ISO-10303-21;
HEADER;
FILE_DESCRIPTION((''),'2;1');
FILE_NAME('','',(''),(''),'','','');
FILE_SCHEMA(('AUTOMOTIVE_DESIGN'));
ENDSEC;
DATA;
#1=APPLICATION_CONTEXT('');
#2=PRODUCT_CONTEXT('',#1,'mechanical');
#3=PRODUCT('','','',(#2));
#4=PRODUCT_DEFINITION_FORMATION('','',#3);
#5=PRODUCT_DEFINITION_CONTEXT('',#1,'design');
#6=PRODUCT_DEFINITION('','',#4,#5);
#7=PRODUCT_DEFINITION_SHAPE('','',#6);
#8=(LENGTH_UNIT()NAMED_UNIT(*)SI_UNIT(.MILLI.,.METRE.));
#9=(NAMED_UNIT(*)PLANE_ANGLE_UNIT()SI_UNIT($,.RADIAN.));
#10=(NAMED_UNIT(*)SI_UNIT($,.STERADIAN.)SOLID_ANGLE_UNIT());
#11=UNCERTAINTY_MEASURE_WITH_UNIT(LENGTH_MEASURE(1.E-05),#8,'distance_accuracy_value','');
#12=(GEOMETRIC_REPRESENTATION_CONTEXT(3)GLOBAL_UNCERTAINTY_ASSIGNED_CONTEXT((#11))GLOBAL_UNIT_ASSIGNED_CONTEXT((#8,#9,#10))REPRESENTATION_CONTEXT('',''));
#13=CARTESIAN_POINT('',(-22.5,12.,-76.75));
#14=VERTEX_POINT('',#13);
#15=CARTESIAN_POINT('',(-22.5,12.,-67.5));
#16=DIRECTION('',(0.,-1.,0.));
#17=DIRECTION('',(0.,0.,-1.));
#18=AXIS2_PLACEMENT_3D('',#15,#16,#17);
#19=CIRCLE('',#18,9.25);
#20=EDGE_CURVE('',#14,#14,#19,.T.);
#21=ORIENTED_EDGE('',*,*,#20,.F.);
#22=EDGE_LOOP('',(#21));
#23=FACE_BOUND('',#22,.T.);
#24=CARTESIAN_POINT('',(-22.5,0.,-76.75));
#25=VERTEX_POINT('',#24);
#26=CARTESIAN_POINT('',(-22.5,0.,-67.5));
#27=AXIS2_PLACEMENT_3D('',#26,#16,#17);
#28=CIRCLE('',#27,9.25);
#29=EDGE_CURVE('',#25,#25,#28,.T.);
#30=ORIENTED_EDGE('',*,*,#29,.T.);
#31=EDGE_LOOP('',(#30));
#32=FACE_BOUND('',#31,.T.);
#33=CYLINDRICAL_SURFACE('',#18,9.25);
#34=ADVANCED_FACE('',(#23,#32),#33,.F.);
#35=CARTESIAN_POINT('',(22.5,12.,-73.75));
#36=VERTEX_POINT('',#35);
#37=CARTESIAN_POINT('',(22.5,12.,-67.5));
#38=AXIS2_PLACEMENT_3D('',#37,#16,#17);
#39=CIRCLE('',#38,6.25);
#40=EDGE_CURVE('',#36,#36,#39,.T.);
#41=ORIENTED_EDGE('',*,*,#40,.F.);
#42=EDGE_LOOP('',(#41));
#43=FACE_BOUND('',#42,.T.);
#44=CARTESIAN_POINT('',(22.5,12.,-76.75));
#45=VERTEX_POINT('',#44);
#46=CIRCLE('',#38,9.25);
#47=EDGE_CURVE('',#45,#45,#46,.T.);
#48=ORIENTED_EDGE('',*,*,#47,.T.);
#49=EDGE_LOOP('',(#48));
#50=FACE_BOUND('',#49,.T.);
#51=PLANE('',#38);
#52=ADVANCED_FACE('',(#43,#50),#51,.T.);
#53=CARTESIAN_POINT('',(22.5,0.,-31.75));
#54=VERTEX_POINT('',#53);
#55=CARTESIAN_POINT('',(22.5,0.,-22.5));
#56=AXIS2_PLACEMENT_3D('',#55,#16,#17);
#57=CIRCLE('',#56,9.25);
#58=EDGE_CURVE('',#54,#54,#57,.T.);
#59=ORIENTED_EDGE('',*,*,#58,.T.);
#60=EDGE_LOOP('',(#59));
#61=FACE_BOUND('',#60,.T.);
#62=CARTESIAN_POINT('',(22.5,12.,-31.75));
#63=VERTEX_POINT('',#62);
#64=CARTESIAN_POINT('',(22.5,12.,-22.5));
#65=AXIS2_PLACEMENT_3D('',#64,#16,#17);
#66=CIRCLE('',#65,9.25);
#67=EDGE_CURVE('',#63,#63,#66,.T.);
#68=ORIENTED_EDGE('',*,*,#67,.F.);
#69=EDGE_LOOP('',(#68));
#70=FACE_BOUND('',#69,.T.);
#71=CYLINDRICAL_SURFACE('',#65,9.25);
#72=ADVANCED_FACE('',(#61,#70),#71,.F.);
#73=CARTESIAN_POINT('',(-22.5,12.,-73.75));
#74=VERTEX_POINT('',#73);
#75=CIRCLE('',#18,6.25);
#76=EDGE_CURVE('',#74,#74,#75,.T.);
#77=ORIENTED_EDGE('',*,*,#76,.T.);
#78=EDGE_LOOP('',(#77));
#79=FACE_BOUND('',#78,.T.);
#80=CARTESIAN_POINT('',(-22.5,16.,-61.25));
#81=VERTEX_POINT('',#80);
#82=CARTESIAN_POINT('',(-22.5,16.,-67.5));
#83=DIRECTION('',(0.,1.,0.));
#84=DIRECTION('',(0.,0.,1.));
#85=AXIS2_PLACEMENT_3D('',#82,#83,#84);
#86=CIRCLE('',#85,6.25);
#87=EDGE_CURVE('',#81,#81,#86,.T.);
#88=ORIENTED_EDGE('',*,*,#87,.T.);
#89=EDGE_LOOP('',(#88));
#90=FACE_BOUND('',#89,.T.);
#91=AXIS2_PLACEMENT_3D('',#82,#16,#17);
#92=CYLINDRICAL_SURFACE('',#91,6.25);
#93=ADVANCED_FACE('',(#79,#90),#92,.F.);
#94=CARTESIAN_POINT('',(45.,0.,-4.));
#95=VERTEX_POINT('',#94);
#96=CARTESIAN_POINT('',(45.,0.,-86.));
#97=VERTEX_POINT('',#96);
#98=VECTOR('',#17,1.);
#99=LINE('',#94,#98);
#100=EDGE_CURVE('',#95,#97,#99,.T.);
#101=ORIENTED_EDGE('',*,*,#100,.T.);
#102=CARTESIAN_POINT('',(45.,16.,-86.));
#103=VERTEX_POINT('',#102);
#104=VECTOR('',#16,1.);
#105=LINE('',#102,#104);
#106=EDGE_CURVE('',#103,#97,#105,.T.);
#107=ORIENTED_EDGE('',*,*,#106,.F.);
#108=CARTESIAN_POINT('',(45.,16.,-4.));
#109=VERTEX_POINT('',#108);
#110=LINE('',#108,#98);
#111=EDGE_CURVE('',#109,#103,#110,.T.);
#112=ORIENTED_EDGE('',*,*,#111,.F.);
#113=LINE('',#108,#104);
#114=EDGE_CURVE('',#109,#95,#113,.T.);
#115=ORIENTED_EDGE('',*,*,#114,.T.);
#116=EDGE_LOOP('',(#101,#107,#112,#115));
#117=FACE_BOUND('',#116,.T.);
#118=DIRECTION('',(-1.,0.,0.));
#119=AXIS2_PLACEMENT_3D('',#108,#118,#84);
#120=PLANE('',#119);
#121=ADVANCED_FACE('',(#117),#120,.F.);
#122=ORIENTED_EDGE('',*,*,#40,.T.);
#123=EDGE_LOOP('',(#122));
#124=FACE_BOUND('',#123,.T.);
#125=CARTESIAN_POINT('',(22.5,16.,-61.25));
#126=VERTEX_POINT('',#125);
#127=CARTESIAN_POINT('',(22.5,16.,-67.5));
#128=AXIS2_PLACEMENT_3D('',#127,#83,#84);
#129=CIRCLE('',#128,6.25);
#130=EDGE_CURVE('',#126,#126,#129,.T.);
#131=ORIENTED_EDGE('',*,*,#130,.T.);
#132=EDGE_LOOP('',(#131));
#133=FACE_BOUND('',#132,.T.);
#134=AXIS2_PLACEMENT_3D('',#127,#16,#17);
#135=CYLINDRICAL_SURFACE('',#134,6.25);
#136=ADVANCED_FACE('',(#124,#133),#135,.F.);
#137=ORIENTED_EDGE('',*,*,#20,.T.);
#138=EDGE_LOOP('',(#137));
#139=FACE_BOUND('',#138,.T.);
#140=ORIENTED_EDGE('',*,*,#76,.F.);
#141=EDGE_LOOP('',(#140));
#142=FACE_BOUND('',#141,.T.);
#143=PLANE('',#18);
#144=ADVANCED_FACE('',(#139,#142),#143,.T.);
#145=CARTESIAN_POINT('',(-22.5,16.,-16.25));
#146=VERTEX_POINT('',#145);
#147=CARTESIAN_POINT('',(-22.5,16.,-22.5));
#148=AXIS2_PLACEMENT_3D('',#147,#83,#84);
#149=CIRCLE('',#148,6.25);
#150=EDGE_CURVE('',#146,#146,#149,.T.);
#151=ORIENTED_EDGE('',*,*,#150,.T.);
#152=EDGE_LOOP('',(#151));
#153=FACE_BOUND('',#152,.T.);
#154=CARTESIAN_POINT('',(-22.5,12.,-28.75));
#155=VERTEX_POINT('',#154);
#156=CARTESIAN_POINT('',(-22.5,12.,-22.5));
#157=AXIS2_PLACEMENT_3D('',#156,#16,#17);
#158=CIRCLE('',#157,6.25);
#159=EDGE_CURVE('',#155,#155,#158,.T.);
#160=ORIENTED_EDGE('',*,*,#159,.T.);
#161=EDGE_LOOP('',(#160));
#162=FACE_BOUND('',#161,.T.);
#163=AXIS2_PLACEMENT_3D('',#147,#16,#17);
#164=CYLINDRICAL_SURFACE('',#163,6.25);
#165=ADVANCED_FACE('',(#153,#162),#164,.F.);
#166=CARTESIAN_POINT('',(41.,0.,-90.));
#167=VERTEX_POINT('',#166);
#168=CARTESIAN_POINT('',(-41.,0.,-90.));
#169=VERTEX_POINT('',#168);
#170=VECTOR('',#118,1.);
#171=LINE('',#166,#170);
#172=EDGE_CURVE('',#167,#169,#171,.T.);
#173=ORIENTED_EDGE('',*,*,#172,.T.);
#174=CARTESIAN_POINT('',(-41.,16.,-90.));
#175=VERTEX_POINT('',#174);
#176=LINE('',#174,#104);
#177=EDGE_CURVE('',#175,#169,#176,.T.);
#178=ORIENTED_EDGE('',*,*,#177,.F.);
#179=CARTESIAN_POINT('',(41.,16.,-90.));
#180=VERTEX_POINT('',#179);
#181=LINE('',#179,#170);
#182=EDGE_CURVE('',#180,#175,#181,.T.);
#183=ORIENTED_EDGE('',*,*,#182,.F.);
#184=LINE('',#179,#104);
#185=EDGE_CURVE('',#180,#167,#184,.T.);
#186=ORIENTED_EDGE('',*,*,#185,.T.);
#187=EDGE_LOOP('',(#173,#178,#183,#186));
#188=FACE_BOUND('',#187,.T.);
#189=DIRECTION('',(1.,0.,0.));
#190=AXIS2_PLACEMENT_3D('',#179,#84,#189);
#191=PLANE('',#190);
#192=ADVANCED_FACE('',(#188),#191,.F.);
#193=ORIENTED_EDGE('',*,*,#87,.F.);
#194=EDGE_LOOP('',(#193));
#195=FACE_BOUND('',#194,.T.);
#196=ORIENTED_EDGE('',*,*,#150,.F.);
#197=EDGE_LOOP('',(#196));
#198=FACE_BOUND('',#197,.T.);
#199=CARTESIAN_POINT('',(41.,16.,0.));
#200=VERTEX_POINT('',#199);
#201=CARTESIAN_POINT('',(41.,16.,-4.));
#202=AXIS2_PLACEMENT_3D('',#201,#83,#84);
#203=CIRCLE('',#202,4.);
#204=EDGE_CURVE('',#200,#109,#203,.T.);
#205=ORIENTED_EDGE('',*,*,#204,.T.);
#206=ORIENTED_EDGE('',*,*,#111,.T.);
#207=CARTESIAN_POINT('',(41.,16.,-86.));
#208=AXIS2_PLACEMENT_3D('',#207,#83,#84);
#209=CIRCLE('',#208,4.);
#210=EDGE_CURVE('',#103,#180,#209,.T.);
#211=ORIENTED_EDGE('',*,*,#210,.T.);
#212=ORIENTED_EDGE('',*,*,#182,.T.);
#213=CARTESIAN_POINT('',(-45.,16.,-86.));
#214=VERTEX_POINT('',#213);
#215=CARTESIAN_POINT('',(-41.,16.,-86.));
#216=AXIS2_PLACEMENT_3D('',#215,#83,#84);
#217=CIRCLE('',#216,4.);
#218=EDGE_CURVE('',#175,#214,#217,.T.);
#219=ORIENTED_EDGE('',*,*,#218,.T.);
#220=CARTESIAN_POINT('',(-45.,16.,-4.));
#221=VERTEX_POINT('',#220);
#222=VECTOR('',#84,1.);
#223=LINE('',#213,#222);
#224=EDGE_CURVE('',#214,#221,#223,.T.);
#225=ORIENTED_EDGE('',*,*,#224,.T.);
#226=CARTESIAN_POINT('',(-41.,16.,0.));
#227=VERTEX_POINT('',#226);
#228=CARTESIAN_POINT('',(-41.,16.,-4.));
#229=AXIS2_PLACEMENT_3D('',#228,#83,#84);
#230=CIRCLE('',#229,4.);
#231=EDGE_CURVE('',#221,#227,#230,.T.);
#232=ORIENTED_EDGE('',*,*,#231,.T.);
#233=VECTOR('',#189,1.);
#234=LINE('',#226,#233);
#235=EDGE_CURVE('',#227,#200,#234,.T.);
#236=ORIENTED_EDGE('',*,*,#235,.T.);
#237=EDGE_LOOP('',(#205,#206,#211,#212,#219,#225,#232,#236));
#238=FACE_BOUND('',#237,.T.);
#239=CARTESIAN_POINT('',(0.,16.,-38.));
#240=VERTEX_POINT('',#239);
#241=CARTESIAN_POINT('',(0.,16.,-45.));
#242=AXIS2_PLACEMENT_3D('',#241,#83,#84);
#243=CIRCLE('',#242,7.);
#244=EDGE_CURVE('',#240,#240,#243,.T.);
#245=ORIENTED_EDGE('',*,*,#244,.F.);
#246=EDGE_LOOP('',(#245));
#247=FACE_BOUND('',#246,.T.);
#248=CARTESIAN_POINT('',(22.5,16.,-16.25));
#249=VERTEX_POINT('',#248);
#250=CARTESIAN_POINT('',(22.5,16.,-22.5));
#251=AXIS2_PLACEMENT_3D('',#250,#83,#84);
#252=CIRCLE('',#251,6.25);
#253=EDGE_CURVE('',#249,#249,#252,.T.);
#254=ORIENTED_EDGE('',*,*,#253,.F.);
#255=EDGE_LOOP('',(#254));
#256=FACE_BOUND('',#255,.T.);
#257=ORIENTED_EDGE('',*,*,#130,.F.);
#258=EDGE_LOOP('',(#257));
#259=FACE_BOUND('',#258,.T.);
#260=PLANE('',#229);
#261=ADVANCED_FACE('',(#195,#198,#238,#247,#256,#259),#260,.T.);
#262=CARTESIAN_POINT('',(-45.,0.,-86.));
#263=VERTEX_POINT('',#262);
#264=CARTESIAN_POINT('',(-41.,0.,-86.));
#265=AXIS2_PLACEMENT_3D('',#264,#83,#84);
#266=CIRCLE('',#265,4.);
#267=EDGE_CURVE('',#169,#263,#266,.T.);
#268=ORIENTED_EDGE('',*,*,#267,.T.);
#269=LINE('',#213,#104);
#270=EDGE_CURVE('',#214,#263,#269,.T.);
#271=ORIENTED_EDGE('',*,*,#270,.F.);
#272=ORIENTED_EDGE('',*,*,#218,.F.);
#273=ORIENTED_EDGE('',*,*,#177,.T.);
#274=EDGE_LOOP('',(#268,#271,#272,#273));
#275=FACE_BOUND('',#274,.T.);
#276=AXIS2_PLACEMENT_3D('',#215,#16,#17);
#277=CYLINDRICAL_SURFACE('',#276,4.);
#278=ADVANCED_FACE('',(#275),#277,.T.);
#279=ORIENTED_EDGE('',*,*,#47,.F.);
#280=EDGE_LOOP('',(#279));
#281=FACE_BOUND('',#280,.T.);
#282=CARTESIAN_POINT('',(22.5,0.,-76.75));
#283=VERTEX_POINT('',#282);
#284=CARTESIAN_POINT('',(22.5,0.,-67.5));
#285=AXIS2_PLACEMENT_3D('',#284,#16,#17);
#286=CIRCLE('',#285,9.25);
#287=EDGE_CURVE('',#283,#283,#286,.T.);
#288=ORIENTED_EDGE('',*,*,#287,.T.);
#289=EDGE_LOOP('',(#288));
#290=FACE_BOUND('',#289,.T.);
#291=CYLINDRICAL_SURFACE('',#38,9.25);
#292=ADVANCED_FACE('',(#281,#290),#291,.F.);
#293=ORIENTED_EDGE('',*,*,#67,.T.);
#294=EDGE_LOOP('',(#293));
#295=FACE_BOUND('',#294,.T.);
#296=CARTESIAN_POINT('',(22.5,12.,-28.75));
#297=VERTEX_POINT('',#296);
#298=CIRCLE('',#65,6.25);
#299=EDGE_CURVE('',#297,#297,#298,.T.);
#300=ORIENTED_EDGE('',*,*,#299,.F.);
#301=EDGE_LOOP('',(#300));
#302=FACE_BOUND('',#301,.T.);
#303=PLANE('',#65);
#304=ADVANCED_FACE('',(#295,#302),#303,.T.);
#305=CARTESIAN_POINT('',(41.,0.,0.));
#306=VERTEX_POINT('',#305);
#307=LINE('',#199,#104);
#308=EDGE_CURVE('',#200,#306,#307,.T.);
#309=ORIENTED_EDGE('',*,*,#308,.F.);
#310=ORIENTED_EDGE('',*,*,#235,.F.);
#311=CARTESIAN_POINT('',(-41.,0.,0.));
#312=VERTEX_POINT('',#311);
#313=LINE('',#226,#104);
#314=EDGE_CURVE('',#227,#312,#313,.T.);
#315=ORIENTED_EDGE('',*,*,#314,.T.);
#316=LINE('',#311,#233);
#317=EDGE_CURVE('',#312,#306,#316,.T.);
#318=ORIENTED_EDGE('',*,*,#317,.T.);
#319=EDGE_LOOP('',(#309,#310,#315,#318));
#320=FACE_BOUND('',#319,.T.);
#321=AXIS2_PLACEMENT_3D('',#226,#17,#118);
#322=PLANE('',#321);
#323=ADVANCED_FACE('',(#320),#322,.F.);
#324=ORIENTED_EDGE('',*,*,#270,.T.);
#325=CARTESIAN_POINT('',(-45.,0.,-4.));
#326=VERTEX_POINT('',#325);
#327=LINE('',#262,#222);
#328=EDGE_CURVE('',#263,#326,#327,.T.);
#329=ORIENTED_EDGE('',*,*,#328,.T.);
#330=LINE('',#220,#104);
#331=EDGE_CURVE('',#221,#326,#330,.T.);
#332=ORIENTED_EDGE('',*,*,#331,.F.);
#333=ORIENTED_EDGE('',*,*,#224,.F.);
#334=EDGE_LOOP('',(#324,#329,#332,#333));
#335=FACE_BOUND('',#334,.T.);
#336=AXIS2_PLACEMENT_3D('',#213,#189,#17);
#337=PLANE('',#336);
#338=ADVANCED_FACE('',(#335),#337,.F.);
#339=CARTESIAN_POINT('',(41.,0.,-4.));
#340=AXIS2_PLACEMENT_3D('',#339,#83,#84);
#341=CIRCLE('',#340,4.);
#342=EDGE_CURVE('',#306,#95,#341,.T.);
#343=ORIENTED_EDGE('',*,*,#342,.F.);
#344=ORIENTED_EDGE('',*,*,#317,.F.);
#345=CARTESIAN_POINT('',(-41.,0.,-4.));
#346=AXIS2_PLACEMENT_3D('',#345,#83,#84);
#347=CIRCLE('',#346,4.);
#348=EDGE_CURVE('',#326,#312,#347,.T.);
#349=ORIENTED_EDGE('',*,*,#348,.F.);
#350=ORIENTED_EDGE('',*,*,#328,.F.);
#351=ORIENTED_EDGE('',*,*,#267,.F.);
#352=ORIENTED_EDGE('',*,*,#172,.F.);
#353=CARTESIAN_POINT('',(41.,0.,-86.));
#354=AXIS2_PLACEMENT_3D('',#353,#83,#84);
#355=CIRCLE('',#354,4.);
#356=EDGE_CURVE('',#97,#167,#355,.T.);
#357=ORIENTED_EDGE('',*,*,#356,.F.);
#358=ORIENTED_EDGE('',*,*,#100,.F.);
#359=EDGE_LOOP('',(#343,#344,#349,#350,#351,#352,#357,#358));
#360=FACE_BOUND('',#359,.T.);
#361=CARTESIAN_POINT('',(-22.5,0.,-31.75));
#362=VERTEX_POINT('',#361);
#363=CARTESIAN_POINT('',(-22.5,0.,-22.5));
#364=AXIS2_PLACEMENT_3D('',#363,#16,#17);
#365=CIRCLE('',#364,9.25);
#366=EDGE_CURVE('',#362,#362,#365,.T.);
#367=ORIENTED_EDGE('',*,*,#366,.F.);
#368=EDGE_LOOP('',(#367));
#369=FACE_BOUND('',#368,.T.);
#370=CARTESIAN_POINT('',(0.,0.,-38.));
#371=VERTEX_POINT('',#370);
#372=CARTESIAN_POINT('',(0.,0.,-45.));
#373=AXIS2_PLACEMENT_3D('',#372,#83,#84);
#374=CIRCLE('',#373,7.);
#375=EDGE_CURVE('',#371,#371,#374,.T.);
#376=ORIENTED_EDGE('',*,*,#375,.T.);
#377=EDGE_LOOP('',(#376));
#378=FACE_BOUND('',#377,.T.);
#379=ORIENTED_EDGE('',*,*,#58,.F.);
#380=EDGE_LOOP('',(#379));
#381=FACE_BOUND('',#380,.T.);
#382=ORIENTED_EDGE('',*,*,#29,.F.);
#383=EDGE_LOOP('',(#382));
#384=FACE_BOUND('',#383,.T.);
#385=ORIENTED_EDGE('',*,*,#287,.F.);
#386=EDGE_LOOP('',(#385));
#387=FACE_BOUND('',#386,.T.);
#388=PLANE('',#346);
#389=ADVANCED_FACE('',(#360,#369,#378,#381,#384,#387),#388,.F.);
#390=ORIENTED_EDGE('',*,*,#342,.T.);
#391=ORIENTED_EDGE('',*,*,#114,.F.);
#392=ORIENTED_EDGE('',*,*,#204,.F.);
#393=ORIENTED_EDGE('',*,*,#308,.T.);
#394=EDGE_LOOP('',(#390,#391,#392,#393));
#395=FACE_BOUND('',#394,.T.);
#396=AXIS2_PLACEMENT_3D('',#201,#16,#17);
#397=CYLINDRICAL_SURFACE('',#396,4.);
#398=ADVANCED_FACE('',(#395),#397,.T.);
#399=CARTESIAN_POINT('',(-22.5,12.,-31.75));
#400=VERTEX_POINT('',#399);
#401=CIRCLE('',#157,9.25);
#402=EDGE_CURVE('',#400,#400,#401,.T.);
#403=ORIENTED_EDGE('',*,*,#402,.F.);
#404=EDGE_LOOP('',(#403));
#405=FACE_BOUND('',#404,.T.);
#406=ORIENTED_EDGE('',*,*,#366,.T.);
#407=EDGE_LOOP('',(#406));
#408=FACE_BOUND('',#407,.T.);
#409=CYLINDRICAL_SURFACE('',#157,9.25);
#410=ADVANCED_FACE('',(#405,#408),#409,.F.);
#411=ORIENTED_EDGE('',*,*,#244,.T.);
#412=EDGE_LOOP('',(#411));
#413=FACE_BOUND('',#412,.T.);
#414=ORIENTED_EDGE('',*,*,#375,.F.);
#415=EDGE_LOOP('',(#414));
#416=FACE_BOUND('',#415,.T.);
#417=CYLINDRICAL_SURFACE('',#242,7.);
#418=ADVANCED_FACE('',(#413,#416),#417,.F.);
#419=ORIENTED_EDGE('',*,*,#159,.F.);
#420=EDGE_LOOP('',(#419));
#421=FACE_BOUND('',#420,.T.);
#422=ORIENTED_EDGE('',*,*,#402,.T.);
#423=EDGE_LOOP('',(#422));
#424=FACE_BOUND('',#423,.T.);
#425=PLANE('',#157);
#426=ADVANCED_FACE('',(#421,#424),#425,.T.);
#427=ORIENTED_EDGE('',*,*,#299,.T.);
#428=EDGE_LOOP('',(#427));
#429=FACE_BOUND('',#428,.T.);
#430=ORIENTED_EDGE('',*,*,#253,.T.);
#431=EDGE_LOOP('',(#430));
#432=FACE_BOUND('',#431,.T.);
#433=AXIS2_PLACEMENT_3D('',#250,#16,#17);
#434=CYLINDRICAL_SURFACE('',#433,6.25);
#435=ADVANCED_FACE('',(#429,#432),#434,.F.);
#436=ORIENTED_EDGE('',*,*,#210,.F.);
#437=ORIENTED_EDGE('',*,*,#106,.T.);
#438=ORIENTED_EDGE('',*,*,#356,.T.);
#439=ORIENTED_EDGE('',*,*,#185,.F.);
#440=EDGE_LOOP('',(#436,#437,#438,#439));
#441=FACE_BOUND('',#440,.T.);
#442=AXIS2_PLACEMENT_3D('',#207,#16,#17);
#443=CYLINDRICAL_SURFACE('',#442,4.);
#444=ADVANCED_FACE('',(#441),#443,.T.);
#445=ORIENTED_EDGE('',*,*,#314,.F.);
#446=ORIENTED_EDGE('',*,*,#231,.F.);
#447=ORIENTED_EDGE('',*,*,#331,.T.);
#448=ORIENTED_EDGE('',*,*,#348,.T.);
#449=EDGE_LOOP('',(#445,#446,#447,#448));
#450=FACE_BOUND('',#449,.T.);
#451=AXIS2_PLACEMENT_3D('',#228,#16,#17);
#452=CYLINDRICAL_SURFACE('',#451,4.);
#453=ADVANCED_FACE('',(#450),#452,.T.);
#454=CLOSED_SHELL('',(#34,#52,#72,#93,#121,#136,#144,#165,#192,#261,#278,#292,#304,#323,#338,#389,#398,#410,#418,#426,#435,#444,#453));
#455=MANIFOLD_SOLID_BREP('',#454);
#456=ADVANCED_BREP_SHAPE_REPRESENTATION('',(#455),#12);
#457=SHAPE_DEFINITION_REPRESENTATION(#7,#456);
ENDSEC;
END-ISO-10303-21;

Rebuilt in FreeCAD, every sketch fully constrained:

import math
import FreeCAD as App
import Part
import Sketcher

doc = App.newDocument("Part")
body = doc.addObject("PartDesign::Body", "Body")

# Sketch on XZ plane
sketch1 = body.newObject("Sketcher::SketchObject", "Sketch")
sketch1.AttachmentSupport = (doc.getObject("XZ_Plane"), [""])
sketch1.MapMode = "FlatFace"
sketch1.addGeometry([
    Part.LineSegment(App.Vector(-41, 0, 0), App.Vector(41, 0, 0)),  # 0
    Part.ArcOfCircle(Part.Circle(App.Vector(41, -4, 0), App.Vector(0, 0, 1), 4), math.radians(0), math.radians(90)),  # 1
    Part.LineSegment(App.Vector(45, -4, 0), App.Vector(45, -86, 0)),  # 2
    Part.ArcOfCircle(Part.Circle(App.Vector(41, -86, 0), App.Vector(0, 0, 1), 4), math.radians(-90), math.radians(0)),  # 3
    Part.LineSegment(App.Vector(41, -90, 0), App.Vector(-41, -90, 0)),  # 4
    Part.ArcOfCircle(Part.Circle(App.Vector(-41, -86, 0), App.Vector(0, 0, 1), 4), math.radians(180), math.radians(270)),  # 5
    Part.LineSegment(App.Vector(-45, -86, 0), App.Vector(-45, -4, 0)),  # 6
    Part.ArcOfCircle(Part.Circle(App.Vector(-41, -4, 0), App.Vector(0, 0, 1), 4), math.radians(90), math.radians(180)),  # 7
    Part.Circle(App.Vector(-22.5, -22.5, 0), App.Vector(0, 0, 1), 6.2),  # 8
    Part.Circle(App.Vector(22.5, -22.5, 0), App.Vector(0, 0, 1), 6.2),  # 9
    Part.Circle(App.Vector(-22.5, -67.5, 0), App.Vector(0, 0, 1), 6.2),  # 10
    Part.Circle(App.Vector(22.5, -67.5, 0), App.Vector(0, 0, 1), 6.2),  # 11
], False)
sketch1.addConstraint([
    Sketcher.Constraint("Tangent", 0, 2, 1, 2),
    Sketcher.Constraint("Tangent", 1, 1, 2, 1),
    Sketcher.Constraint("Tangent", 2, 2, 3, 2),
    Sketcher.Constraint("Tangent", 3, 1, 4, 1),
    Sketcher.Constraint("Tangent", 4, 2, 5, 2),
    Sketcher.Constraint("Tangent", 5, 1, 6, 1),
    Sketcher.Constraint("Tangent", 6, 2, 7, 2),
    Sketcher.Constraint("Tangent", 7, 1, 0, 1),
    Sketcher.Constraint("Horizontal", 0),
    Sketcher.Constraint("Vertical", 2),
    Sketcher.Constraint("Horizontal", 4),
    Sketcher.Constraint("Vertical", 6),
    Sketcher.Constraint("Equal", 1, 3),
    Sketcher.Constraint("Equal", 3, 5),
    Sketcher.Constraint("Equal", 5, 7),
    Sketcher.Constraint("Equal", 8, 9),
    Sketcher.Constraint("Equal", 9, 10),
    Sketcher.Constraint("Equal", 10, 11),
    Sketcher.Constraint("Symmetric", 0, 2, 7, 1, -1, 1),
    Sketcher.Constraint("Symmetric", 8, 3, 9, 3, -2),
    Sketcher.Constraint("Symmetric", 10, 3, 11, 3, -2),
    Sketcher.Constraint("Vertical", 8, 3, 10, 3),
    Sketcher.Constraint("Equal", 4, 2),
    Sketcher.Constraint("Radius", 1, 4.0),
    Sketcher.Constraint("Diameter", 8, 12.5),
    Sketcher.Constraint("DistanceX", 0, 1, 0, 2, 82.0),
    Sketcher.Constraint("DistanceX", 8, 3, 9, 3, 45.0),
    Sketcher.Constraint("DistanceY", 10, 3, 8, 3, 45.0),
    Sketcher.Constraint("DistanceY", 8, 3, -1, 1, 22.5),
])
pad1 = body.newObject("PartDesign::Pad", "Pad")
pad1.Profile = sketch1
pad1.Length = 16
pad1.Reversed = True

# Sketch on XZ plane
sketch2 = body.newObject("Sketcher::SketchObject", "Sketch001")
sketch2.AttachmentSupport = (doc.getObject("XZ_Plane"), [""])
sketch2.MapMode = "FlatFace"
sketch2.addGeometry([
    Part.Circle(App.Vector(22, -22, 0), App.Vector(0, 0, 1), 9),
    Part.Circle(App.Vector(22, -68, 0), App.Vector(0, 0, 1), 9),
    Part.Circle(App.Vector(-22, -68, 0), App.Vector(0, 0, 1), 9),
    Part.Circle(App.Vector(-22, -22, 0), App.Vector(0, 0, 1), 9),
], False)
sketch2.addConstraint([
    Sketcher.Constraint("Equal", 0, 1),
    Sketcher.Constraint("Equal", 1, 2),
    Sketcher.Constraint("Equal", 2, 3),
    Sketcher.Constraint("Symmetric", 1, 3, 2, 3, -2),
    Sketcher.Constraint("Symmetric", 0, 3, 3, 3, -2),
    Sketcher.Constraint("Vertical", 0, 3, 1, 3),
    Sketcher.Constraint("Diameter", 0, 18.5),
    Sketcher.Constraint("DistanceY", 1, 3, 0, 3, 45.0),
    Sketcher.Constraint("DistanceX", 2, 3, 1, 3, 45.0),
    Sketcher.Constraint("DistanceY", 0, 3, -1, 1, 22.5),
])
pocket1 = body.newObject("PartDesign::Pocket", "Pocket")
pocket1.Profile = sketch2
pocket1.Length = 12

# Sketch on XZ plane
sketch3 = body.newObject("Sketcher::SketchObject", "Sketch002")
sketch3.AttachmentSupport = (doc.getObject("XZ_Plane"), [""])
sketch3.MapMode = "FlatFace"
sketch3.AttachmentOffset = App.Placement(App.Vector(0, 0, -16), App.Rotation())
sketch3.addGeometry(Part.Circle(App.Vector(0, -45, 0), App.Vector(0, 0, 1), 7), False)
sketch3.addConstraint([
    Sketcher.Constraint("PointOnObject", 0, 3, -2),
    Sketcher.Constraint("Diameter", 0, 14.0),
    Sketcher.Constraint("DistanceY", 0, 3, -1, 1, 45.0),
])
doc.recompute()
hole = body.newObject("PartDesign::Hole", "Hole")
hole.Profile = sketch3
hole.ThreadType = "None"
hole.Diameter = 14
hole.DepthType = "Dimension"
hole.Depth = 38
hole.DrillPoint = "Angled"
hole.DrillPointAngle = 118
hole.Reversed = True

doc.recompute()
